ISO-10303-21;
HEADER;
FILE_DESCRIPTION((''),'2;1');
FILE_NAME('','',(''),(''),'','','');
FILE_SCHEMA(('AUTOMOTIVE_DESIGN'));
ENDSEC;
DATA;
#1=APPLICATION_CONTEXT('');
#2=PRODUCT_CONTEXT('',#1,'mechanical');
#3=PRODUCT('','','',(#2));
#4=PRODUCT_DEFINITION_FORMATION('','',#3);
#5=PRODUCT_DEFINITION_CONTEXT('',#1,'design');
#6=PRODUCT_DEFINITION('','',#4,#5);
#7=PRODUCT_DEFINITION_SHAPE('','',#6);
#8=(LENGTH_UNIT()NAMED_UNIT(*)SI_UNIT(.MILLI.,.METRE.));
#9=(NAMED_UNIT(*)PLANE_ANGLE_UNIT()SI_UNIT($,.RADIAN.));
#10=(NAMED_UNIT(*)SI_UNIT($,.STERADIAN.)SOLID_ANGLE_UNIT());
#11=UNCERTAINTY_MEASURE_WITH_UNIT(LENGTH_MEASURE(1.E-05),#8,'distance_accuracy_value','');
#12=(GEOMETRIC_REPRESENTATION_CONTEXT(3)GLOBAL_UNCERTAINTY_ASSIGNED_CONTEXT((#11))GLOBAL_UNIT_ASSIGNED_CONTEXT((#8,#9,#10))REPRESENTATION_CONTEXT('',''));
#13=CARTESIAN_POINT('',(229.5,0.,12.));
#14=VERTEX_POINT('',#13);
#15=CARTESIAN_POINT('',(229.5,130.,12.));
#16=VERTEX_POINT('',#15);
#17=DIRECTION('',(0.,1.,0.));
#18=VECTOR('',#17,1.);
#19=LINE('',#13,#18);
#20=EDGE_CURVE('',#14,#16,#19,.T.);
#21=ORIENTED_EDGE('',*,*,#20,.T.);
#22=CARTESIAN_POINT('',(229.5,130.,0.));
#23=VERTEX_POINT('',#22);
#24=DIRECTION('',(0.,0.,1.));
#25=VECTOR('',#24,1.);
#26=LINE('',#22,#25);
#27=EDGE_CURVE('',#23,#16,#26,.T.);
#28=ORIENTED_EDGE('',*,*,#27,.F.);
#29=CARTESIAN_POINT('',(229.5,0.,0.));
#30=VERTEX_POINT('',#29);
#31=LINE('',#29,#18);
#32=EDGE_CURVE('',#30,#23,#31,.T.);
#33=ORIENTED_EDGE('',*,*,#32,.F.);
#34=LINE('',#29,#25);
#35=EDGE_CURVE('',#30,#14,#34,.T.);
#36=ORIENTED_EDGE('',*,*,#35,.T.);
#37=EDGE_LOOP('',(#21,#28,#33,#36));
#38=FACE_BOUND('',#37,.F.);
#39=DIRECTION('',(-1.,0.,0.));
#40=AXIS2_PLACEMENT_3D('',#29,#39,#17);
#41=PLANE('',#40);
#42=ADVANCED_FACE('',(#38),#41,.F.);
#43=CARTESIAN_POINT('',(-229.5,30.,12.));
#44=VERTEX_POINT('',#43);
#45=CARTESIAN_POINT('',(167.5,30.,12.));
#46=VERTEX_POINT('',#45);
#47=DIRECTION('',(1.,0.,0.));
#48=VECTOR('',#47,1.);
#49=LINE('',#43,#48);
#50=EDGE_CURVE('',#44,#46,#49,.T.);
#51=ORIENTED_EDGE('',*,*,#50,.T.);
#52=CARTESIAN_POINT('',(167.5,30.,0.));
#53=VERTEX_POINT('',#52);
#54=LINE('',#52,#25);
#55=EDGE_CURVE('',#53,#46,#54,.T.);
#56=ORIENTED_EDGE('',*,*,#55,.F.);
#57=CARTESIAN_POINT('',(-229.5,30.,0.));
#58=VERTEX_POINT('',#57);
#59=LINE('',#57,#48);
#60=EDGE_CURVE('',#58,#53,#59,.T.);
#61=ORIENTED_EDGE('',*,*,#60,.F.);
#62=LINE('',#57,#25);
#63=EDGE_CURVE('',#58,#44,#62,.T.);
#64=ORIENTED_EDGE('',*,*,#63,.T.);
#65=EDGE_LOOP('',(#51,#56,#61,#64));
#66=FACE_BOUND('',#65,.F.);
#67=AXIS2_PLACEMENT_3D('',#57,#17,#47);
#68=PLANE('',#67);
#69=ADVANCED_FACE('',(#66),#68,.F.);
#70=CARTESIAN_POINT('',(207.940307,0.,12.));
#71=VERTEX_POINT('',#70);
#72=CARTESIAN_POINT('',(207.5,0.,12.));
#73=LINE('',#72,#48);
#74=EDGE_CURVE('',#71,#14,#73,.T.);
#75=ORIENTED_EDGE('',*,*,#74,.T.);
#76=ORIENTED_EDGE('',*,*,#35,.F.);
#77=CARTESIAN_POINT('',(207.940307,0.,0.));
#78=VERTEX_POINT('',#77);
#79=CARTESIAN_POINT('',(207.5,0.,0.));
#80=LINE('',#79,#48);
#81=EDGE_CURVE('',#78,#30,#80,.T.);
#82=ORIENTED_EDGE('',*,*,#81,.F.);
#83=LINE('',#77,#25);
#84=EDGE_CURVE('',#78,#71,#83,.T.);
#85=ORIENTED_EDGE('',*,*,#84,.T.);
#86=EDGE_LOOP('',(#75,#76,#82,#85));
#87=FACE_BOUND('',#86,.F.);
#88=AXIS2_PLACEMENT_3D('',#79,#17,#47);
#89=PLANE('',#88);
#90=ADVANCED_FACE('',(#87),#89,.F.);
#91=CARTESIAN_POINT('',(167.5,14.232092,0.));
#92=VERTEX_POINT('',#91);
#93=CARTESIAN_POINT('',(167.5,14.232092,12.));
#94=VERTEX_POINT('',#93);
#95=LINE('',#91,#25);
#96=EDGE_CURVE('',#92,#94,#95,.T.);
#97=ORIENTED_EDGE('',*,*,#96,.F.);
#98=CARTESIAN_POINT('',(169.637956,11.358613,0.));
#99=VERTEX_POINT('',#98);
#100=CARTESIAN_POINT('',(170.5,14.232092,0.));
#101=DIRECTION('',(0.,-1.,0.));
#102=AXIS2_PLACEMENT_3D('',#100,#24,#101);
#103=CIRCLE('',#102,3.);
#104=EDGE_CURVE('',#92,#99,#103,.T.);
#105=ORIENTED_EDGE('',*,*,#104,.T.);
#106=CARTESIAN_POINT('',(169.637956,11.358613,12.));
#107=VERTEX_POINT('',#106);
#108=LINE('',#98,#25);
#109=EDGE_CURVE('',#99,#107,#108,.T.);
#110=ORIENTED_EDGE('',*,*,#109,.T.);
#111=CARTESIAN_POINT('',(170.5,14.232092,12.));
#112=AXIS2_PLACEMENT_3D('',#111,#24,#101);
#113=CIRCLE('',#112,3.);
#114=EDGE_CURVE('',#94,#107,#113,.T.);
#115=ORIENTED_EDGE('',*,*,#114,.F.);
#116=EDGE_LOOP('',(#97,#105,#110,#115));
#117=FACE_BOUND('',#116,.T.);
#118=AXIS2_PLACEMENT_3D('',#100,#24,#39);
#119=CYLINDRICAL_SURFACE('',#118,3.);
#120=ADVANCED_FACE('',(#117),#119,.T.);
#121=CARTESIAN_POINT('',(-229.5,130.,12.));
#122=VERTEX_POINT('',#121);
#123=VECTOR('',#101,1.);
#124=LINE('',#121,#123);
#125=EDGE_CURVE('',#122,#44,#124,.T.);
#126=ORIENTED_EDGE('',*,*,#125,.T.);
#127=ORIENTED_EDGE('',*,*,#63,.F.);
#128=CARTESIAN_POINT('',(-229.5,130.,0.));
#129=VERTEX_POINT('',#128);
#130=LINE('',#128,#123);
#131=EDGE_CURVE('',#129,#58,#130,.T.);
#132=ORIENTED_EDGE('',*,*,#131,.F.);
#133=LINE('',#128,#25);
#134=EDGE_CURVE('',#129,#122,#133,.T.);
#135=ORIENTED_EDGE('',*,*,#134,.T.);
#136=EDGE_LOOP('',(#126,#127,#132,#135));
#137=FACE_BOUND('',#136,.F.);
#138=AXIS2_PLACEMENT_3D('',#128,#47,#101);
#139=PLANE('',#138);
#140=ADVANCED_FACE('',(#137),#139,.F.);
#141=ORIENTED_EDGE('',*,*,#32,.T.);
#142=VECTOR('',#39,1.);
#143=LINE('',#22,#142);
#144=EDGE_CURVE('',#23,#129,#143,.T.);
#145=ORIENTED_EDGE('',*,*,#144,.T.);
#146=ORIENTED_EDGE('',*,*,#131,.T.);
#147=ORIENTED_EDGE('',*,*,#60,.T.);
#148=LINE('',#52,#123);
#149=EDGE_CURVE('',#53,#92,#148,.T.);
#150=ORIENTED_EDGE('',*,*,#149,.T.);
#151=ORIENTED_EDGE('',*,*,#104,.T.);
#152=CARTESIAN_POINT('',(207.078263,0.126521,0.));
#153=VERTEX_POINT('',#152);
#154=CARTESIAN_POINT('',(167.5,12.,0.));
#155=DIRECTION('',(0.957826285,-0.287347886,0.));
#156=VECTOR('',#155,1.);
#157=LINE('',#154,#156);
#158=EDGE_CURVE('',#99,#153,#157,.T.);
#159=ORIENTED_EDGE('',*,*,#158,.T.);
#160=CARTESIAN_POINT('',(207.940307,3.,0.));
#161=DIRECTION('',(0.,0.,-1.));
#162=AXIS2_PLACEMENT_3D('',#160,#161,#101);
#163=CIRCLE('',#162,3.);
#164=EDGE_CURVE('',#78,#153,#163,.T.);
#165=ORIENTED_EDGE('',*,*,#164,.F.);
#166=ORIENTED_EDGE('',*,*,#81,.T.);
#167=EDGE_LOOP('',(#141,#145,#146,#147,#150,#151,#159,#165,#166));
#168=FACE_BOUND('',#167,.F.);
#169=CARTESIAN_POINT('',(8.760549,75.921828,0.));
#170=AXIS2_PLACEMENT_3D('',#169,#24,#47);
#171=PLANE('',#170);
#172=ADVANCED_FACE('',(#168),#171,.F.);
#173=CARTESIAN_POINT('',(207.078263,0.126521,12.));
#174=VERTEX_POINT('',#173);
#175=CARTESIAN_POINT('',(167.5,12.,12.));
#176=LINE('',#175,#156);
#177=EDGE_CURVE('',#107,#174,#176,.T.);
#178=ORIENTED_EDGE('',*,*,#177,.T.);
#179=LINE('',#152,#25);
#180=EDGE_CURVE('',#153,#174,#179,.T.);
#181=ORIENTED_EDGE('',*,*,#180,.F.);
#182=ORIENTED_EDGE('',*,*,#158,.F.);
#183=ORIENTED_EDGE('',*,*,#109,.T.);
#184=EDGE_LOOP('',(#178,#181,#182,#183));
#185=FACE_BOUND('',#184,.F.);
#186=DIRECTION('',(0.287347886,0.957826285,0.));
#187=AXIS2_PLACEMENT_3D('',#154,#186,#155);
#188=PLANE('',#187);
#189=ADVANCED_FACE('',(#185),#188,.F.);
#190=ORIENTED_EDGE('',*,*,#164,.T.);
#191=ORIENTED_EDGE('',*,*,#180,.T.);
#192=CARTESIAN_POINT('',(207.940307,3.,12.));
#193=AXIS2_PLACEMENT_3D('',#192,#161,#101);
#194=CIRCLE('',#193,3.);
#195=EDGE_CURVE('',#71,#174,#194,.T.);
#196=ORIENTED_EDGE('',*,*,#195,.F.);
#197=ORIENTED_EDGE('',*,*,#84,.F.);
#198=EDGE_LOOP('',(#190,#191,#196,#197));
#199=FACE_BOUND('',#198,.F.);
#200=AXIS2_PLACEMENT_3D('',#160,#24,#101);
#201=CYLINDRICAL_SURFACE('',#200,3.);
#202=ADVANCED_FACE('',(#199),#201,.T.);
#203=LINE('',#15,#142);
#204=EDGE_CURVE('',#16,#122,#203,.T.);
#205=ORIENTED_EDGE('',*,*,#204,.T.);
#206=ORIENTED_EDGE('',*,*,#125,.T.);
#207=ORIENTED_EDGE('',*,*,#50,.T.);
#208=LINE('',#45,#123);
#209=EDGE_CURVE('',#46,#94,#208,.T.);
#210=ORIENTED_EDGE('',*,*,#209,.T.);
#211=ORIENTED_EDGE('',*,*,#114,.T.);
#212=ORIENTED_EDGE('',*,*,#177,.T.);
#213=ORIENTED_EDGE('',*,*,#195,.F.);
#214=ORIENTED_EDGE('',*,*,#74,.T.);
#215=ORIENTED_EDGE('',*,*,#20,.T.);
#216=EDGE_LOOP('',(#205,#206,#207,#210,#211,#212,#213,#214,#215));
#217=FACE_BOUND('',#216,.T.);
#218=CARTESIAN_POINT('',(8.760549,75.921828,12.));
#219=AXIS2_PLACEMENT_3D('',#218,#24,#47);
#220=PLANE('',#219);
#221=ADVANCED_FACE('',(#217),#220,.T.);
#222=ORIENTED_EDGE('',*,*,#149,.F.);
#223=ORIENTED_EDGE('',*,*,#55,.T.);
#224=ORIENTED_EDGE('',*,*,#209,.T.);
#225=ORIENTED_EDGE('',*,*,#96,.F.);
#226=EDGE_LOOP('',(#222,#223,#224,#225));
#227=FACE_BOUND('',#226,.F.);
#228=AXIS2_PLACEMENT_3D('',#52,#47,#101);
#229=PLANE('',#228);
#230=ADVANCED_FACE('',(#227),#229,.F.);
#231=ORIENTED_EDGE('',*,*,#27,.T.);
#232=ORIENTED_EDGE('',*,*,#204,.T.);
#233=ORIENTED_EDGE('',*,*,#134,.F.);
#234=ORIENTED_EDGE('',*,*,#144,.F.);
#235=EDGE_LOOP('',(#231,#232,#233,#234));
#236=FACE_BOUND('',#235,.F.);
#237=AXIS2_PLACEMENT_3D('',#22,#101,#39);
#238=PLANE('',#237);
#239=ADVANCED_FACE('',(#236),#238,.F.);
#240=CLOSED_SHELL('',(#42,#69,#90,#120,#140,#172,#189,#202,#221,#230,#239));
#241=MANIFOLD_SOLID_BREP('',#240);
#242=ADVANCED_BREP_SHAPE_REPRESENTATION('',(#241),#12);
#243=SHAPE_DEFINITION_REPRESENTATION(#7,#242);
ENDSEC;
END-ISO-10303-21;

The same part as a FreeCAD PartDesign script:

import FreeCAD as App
import Part
import Sketcher
Q = App.Units.Quantity


def edges_at(feature, points):
    """Names of the edges that pass closest to the given points."""
    edges = feature.Shape.Edges
    near = lambda p: min(range(len(edges)), key=lambda i: edges[i].distToShape(Part.Vertex(*p))[0])
    return sorted({f"Edge{near(p) + 1}" for p in points})

doc = App.newDocument("Part")
body = doc.addObject("PartDesign::Body", "Body")

sketch1 = body.newObject("Sketcher::SketchObject", "Sketch")
sketch1.AttachmentSupport = (doc.getObject("XY_Plane"), [""])
sketch1.MapMode = "FlatFace"
sketch1.addGeometry(Part.LineSegment(App.Vector(208, 0, 0), App.Vector(230, 0, 0)), False)
sketch1.addGeometry(Part.LineSegment(App.Vector(230, 0, 0), App.Vector(230, 130, 0)), False)
sketch1.addGeometry(Part.LineSegment(App.Vector(230, 130, 0), App.Vector(-230, 130, 0)), False)
sketch1.addGeometry(Part.LineSegment(App.Vector(-230, 130, 0), App.Vector(-230, 30, 0)), False)
sketch1.addGeometry(Part.LineSegment(App.Vector(-230, 30, 0), App.Vector(168, 30, 0)), False)
sketch1.addGeometry(Part.LineSegment(App.Vector(168, 30, 0), App.Vector(168, 12, 0)), False)
sketch1.addGeometry(Part.LineSegment(App.Vector(168, 12, 0), App.Vector(208, 0, 0)), False)
sketch1.addConstraint(Sketcher.Constraint("Coincident", 0, 2, 1, 1))
sketch1.addConstraint(Sketcher.Constraint("Coincident", 1, 2, 2, 1))
sketch1.addConstraint(Sketcher.Constraint("Coincident", 2, 2, 3, 1))
sketch1.addConstraint(Sketcher.Constraint("Coincident", 3, 2, 4, 1))
sketch1.addConstraint(Sketcher.Constraint("Coincident", 4, 2, 5, 1))
sketch1.addConstraint(Sketcher.Constraint("Coincident", 5, 2, 6, 1))
sketch1.addConstraint(Sketcher.Constraint("Coincident", 6, 2, 0, 1))
sketch1.addConstraint(Sketcher.Constraint("Horizontal", 0))
sketch1.addConstraint(Sketcher.Constraint("Vertical", 1))
sketch1.addConstraint(Sketcher.Constraint("Horizontal", 2))
sketch1.addConstraint(Sketcher.Constraint("Vertical", 3))
sketch1.addConstraint(Sketcher.Constraint("Horizontal", 4))
sketch1.addConstraint(Sketcher.Constraint("Vertical", 5))
sketch1.addConstraint(Sketcher.Constraint("PointOnObject", 0, 2, -1))
sketch1.addConstraint(Sketcher.Constraint("DistanceX", 0, 1, 0, 2, Q("22 mm")))
sketch1.addConstraint(Sketcher.Constraint("DistanceX", 2, 2, 2, 1, Q("459 mm")))
sketch1.addConstraint(Sketcher.Constraint("DistanceX", 4, 1, 4, 2, Q("397 mm")))
sketch1.addConstraint(Sketcher.Constraint("DistanceY", 1, 1, 1, 2, Q("130 mm")))
sketch1.addConstraint(Sketcher.Constraint("DistanceY", 3, 2, 3, 1, Q("100 mm")))
sketch1.addConstraint(Sketcher.Constraint("DistanceY", 5, 2, 5, 1, Q("18 mm")))
sketch1.addConstraint(Sketcher.Constraint("DistanceX", -1, 1, 0, 2, Q("229.5 mm")))
pad1 = body.newObject("PartDesign::Pad", "Pad")
pad1.Profile = sketch1
pad1.Length = 12
doc.recompute()

fillet = body.newObject("PartDesign::Fillet", "Fillet")
fillet.Base = (pad1, edges_at(pad1, [(207.5, 0, 6), (167.5, 12, 6)]))
fillet.Radius = 3

doc.recompute()
